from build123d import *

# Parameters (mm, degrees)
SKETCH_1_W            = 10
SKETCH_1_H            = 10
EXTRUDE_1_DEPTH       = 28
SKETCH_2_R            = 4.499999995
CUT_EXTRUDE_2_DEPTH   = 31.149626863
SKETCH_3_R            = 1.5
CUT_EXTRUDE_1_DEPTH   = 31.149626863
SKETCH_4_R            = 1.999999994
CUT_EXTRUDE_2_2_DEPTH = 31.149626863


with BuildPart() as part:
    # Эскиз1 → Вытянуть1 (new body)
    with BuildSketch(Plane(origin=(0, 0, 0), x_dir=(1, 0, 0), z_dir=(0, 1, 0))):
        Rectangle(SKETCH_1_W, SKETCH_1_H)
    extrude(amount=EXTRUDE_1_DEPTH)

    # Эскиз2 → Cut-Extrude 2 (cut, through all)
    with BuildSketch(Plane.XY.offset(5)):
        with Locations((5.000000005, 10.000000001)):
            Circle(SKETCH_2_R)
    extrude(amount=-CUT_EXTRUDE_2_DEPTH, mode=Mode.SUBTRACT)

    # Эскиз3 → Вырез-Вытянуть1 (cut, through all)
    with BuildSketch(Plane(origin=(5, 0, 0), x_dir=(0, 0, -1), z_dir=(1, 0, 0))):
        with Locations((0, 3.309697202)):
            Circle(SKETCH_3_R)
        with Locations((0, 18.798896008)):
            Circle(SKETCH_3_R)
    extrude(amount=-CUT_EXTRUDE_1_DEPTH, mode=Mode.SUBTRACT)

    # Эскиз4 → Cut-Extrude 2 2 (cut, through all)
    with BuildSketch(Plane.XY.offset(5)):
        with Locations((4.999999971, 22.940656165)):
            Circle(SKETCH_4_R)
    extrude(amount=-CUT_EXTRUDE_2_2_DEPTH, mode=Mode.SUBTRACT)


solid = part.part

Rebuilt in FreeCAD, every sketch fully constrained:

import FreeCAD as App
import Part
import Sketcher
Q = App.Units.Quantity

doc = App.newDocument("Part")
body = doc.addObject("PartDesign::Body", "Body")

sketch1 = body.newObject("Sketcher::SketchObject", "Sketch")
sketch1.AttachmentSupport = (doc.getObject("XZ_Plane"), [""])
sketch1.MapMode = "FlatFace"
sketch1.addGeometry([
    Part.LineSegment(App.Vector(-5, -5, 0), App.Vector(-5, 5, 0)),
    Part.LineSegment(App.Vector(-5, 5, 0), App.Vector(5, 5, 0)),
    Part.LineSegment(App.Vector(5, 5, 0), App.Vector(5, -5, 0)),
    Part.LineSegment(App.Vector(5, -5, 0), App.Vector(-5, -5, 0)),
], False)
sketch1.addConstraint([
    Sketcher.Constraint("Coincident", 0, 2, 1, 1),
    Sketcher.Constraint("Coincident", 1, 2, 2, 1),
    Sketcher.Constraint("Coincident", 2, 2, 3, 1),
    Sketcher.Constraint("Coincident", 3, 2, 0, 1),
    Sketcher.Constraint("Vertical", 0),
    Sketcher.Constraint("Horizontal", 1),
    Sketcher.Constraint("Vertical", 2),
    Sketcher.Constraint("Horizontal", 3),
    Sketcher.Constraint("Symmetric", 0, 2, 2, 2, -1, 1),
    Sketcher.Constraint("Equal", 3, 0),
    Sketcher.Constraint("DistanceX", 1, 1, 1, 2, Q("10 mm")),
])
pad1 = body.newObject("PartDesign::Pad", "Pad")
pad1.Profile = sketch1
pad1.Length = 28
pad1.Reversed = True

sketch2 = body.newObject("Sketcher::SketchObject", "Sketch001")
sketch2.AttachmentSupport = (doc.getObject("XY_Plane"), [""])
sketch2.MapMode = "FlatFace"
sketch2.AttachmentOffset = App.Placement(App.Vector(0, 0, 5), App.Rotation())
sketch2.addGeometry(Part.Circle(App.Vector(5, 10, 0), App.Vector(0, 0, 1), 4.5), False)
sketch2.addConstraint([
    Sketcher.Constraint("Diameter", 0, Q("9 mm")),
    Sketcher.Constraint("DistanceX", -1, 1, 0, 3, Q("5 mm")),
    Sketcher.Constraint("DistanceY", -1, 1, 0, 3, Q("10 mm")),
])
pocket1 = body.newObject("PartDesign::Pocket", "Pocket")
pocket1.Profile = sketch2
pocket1.Type = "ThroughAll"

sketch3 = body.newObject("Sketcher::SketchObject", "Sketch002")
sketch3.AttachmentSupport = (doc.getObject("YZ_Plane"), [""])
sketch3.MapMode = "FlatFace"
sketch3.AttachmentOffset = App.Placement(App.Vector(0, 0, 5), App.Rotation())
sketch3.addGeometry([
    Part.Circle(App.Vector(3.3, 0, 0), App.Vector(0, 0, 1), 1.5),
    Part.Circle(App.Vector(18.8, 0, 0), App.Vector(0, 0, 1), 1.5),
], False)
sketch3.addConstraint([
    Sketcher.Constraint("Equal", 0, 1),
    Sketcher.Constraint("PointOnObject", 0, 3, -1),
    Sketcher.Constraint("PointOnObject", 1, 3, -1),
    Sketcher.Constraint("Diameter", 0, Q("3 mm")),
    Sketcher.Constraint("DistanceX", 0, 3, 1, 3, Q("15.489199 mm")),
    Sketcher.Constraint("DistanceX", -1, 1, 0, 3, Q("3.309697 mm")),
])
pocket2 = body.newObject("PartDesign::Pocket", "Pocket001")
pocket2.Profile = sketch3
pocket2.Type = "ThroughAll"

sketch4 = body.newObject("Sketcher::SketchObject", "Sketch003")
sketch4.AttachmentSupport = (doc.getObject("XY_Plane"), [""])
sketch4.MapMode = "FlatFace"
sketch4.AttachmentOffset = App.Placement(App.Vector(0, 0, 5), App.Rotation())
sketch4.addGeometry(Part.Circle(App.Vector(5, 22.9, 0), App.Vector(0, 0, 1), 2), False)
sketch4.addConstraint([
    Sketcher.Constraint("Diameter", 0, Q("4 mm")),
    Sketcher.Constraint("DistanceX", -1, 1, 0, 3, Q("5 mm")),
    Sketcher.Constraint("DistanceY", -1, 1, 0, 3, Q("22.940656 mm")),
])
pocket3 = body.newObject("PartDesign::Pocket", "Pocket002")
pocket3.Profile = sketch4
pocket3.Type = "ThroughAll"

doc.recompute()
